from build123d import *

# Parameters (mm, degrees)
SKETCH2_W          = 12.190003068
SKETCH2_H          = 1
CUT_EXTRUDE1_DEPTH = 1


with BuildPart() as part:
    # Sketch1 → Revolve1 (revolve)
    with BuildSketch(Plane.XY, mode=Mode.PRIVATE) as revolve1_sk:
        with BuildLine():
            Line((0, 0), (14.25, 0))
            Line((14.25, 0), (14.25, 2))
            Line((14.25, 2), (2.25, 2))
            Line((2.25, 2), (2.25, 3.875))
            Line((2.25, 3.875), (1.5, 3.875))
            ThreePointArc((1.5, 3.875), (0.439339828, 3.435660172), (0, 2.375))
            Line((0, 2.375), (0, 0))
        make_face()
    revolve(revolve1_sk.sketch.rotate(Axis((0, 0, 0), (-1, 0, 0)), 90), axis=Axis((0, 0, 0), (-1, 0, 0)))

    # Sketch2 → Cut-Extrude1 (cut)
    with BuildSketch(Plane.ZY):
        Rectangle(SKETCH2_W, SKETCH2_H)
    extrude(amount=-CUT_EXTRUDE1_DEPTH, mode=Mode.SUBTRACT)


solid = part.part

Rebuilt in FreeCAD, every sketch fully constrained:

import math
import FreeCAD as App
import Part
import Sketcher

V = App.Vector


def add_polygon(sketch, points):
    """Adds a closed chain of lines whose ends are joined by coincident constraints."""
    first, n = sketch.GeometryCount, len(points)
    for a, b in zip(points, points[1:] + points[:1]):
        sketch.addGeometry(Part.LineSegment(App.Vector(*a, 0), App.Vector(*b, 0)), False)
    for i in range(n):
        sketch.addConstraint(Sketcher.Constraint("Coincident", first + i, 2, first + (i + 1) % n, 1))

doc = App.newDocument("Part")
body = doc.addObject("PartDesign::Body", "Body")

sketch1 = body.newObject("Sketcher::SketchObject", "Sketch")
sketch1.AttachmentSupport = (doc.getObject("XY_Plane"), [""])
sketch1.MapMode = "FlatFace"
sketch1.addGeometry([
    Part.LineSegment(V(0, 0, 0), V(14.25, 0, 0)),
    Part.LineSegment(V(14.25, 0, 0), V(14.25, 2, 0)),
    Part.LineSegment(V(14.25, 2, 0), V(2.25, 2, 0)),
    Part.LineSegment(V(2.25, 2, 0), V(2.25, 3.875, 0)),
    Part.LineSegment(V(2.25, 3.875, 0), V(1.5, 3.875, 0)),
    Part.ArcOfCircle(Part.Circle(V(1.5, 2.375, 0), V(0, 0, 1), 1.5), math.radians(90), math.radians(180)),
    Part.LineSegment(V(0, 2.375, 0), V(0, 0, 0)),
], False)
sketch1.addConstraint([
    Sketcher.Constraint("Coincident", 0, 2, 1, 1),
    Sketcher.Constraint("Coincident", 1, 2, 2, 1),
    Sketcher.Constraint("Coincident", 2, 2, 3, 1),
    Sketcher.Constraint("Coincident", 3, 2, 4, 1),
    Sketcher.Constraint("Tangent", 4, 2, 5, 1),
    Sketcher.Constraint("Tangent", 5, 2, 6, 1),
    Sketcher.Constraint("Coincident", 6, 2, 0, 1),
    Sketcher.Constraint("Horizontal", 0),
    Sketcher.Constraint("Vertical", 1),
    Sketcher.Constraint("Horizontal", 2),
    Sketcher.Constraint("Vertical", 3),
    Sketcher.Constraint("Horizontal", 4),
    Sketcher.Constraint("Vertical", 6),
    Sketcher.Constraint("Coincident", 6, 2, -1, 1),
    Sketcher.Constraint("Radius", 5, 1.5),
    Sketcher.Constraint("DistanceX", 2, 2, 2, 1, 12.0),
    Sketcher.Constraint("DistanceY", 1, 1, 1, 2, 2.0),
    Sketcher.Constraint("DistanceX", 0, 1, 0, 2, 14.25),
    Sketcher.Constraint("DistanceY", 3, 1, 3, 2, 1.875),
])
revolution = body.newObject("PartDesign::Revolution", "Revolution")
revolution.Profile = sketch1
revolution.ReferenceAxis = (sketch1, ["H_Axis"])
revolution.Angle = 360

sketch2 = body.newObject("Sketcher::SketchObject", "Sketch001")
sketch2.AttachmentSupport = (doc.getObject("YZ_Plane"), [""])
sketch2.MapMode = "FlatFace"
add_polygon(sketch2, [(0.5, -6.095002), (-0.5, -6.095002), (-0.5, 6.095002), (0.5, 6.095002)])
sketch2.addConstraint([
    Sketcher.Constraint("Horizontal", 0),
    Sketcher.Constraint("Vertical", 1),
    Sketcher.Constraint("Horizontal", 2),
    Sketcher.Constraint("Vertical", 3),
    Sketcher.Constraint("Symmetric", 0, 2, 2, 2, -1, 1),
    Sketcher.Constraint("DistanceX", 0, 2, 0, 1, 1.0),
    Sketcher.Constraint("DistanceY", 0, 2, -1, 1, 6.095002),
])
pocket1 = body.newObject("PartDesign::Pocket", "Pocket")
pocket1.Profile = sketch2
pocket1.Length = 1
pocket1.Reversed = True

doc.recompute()
